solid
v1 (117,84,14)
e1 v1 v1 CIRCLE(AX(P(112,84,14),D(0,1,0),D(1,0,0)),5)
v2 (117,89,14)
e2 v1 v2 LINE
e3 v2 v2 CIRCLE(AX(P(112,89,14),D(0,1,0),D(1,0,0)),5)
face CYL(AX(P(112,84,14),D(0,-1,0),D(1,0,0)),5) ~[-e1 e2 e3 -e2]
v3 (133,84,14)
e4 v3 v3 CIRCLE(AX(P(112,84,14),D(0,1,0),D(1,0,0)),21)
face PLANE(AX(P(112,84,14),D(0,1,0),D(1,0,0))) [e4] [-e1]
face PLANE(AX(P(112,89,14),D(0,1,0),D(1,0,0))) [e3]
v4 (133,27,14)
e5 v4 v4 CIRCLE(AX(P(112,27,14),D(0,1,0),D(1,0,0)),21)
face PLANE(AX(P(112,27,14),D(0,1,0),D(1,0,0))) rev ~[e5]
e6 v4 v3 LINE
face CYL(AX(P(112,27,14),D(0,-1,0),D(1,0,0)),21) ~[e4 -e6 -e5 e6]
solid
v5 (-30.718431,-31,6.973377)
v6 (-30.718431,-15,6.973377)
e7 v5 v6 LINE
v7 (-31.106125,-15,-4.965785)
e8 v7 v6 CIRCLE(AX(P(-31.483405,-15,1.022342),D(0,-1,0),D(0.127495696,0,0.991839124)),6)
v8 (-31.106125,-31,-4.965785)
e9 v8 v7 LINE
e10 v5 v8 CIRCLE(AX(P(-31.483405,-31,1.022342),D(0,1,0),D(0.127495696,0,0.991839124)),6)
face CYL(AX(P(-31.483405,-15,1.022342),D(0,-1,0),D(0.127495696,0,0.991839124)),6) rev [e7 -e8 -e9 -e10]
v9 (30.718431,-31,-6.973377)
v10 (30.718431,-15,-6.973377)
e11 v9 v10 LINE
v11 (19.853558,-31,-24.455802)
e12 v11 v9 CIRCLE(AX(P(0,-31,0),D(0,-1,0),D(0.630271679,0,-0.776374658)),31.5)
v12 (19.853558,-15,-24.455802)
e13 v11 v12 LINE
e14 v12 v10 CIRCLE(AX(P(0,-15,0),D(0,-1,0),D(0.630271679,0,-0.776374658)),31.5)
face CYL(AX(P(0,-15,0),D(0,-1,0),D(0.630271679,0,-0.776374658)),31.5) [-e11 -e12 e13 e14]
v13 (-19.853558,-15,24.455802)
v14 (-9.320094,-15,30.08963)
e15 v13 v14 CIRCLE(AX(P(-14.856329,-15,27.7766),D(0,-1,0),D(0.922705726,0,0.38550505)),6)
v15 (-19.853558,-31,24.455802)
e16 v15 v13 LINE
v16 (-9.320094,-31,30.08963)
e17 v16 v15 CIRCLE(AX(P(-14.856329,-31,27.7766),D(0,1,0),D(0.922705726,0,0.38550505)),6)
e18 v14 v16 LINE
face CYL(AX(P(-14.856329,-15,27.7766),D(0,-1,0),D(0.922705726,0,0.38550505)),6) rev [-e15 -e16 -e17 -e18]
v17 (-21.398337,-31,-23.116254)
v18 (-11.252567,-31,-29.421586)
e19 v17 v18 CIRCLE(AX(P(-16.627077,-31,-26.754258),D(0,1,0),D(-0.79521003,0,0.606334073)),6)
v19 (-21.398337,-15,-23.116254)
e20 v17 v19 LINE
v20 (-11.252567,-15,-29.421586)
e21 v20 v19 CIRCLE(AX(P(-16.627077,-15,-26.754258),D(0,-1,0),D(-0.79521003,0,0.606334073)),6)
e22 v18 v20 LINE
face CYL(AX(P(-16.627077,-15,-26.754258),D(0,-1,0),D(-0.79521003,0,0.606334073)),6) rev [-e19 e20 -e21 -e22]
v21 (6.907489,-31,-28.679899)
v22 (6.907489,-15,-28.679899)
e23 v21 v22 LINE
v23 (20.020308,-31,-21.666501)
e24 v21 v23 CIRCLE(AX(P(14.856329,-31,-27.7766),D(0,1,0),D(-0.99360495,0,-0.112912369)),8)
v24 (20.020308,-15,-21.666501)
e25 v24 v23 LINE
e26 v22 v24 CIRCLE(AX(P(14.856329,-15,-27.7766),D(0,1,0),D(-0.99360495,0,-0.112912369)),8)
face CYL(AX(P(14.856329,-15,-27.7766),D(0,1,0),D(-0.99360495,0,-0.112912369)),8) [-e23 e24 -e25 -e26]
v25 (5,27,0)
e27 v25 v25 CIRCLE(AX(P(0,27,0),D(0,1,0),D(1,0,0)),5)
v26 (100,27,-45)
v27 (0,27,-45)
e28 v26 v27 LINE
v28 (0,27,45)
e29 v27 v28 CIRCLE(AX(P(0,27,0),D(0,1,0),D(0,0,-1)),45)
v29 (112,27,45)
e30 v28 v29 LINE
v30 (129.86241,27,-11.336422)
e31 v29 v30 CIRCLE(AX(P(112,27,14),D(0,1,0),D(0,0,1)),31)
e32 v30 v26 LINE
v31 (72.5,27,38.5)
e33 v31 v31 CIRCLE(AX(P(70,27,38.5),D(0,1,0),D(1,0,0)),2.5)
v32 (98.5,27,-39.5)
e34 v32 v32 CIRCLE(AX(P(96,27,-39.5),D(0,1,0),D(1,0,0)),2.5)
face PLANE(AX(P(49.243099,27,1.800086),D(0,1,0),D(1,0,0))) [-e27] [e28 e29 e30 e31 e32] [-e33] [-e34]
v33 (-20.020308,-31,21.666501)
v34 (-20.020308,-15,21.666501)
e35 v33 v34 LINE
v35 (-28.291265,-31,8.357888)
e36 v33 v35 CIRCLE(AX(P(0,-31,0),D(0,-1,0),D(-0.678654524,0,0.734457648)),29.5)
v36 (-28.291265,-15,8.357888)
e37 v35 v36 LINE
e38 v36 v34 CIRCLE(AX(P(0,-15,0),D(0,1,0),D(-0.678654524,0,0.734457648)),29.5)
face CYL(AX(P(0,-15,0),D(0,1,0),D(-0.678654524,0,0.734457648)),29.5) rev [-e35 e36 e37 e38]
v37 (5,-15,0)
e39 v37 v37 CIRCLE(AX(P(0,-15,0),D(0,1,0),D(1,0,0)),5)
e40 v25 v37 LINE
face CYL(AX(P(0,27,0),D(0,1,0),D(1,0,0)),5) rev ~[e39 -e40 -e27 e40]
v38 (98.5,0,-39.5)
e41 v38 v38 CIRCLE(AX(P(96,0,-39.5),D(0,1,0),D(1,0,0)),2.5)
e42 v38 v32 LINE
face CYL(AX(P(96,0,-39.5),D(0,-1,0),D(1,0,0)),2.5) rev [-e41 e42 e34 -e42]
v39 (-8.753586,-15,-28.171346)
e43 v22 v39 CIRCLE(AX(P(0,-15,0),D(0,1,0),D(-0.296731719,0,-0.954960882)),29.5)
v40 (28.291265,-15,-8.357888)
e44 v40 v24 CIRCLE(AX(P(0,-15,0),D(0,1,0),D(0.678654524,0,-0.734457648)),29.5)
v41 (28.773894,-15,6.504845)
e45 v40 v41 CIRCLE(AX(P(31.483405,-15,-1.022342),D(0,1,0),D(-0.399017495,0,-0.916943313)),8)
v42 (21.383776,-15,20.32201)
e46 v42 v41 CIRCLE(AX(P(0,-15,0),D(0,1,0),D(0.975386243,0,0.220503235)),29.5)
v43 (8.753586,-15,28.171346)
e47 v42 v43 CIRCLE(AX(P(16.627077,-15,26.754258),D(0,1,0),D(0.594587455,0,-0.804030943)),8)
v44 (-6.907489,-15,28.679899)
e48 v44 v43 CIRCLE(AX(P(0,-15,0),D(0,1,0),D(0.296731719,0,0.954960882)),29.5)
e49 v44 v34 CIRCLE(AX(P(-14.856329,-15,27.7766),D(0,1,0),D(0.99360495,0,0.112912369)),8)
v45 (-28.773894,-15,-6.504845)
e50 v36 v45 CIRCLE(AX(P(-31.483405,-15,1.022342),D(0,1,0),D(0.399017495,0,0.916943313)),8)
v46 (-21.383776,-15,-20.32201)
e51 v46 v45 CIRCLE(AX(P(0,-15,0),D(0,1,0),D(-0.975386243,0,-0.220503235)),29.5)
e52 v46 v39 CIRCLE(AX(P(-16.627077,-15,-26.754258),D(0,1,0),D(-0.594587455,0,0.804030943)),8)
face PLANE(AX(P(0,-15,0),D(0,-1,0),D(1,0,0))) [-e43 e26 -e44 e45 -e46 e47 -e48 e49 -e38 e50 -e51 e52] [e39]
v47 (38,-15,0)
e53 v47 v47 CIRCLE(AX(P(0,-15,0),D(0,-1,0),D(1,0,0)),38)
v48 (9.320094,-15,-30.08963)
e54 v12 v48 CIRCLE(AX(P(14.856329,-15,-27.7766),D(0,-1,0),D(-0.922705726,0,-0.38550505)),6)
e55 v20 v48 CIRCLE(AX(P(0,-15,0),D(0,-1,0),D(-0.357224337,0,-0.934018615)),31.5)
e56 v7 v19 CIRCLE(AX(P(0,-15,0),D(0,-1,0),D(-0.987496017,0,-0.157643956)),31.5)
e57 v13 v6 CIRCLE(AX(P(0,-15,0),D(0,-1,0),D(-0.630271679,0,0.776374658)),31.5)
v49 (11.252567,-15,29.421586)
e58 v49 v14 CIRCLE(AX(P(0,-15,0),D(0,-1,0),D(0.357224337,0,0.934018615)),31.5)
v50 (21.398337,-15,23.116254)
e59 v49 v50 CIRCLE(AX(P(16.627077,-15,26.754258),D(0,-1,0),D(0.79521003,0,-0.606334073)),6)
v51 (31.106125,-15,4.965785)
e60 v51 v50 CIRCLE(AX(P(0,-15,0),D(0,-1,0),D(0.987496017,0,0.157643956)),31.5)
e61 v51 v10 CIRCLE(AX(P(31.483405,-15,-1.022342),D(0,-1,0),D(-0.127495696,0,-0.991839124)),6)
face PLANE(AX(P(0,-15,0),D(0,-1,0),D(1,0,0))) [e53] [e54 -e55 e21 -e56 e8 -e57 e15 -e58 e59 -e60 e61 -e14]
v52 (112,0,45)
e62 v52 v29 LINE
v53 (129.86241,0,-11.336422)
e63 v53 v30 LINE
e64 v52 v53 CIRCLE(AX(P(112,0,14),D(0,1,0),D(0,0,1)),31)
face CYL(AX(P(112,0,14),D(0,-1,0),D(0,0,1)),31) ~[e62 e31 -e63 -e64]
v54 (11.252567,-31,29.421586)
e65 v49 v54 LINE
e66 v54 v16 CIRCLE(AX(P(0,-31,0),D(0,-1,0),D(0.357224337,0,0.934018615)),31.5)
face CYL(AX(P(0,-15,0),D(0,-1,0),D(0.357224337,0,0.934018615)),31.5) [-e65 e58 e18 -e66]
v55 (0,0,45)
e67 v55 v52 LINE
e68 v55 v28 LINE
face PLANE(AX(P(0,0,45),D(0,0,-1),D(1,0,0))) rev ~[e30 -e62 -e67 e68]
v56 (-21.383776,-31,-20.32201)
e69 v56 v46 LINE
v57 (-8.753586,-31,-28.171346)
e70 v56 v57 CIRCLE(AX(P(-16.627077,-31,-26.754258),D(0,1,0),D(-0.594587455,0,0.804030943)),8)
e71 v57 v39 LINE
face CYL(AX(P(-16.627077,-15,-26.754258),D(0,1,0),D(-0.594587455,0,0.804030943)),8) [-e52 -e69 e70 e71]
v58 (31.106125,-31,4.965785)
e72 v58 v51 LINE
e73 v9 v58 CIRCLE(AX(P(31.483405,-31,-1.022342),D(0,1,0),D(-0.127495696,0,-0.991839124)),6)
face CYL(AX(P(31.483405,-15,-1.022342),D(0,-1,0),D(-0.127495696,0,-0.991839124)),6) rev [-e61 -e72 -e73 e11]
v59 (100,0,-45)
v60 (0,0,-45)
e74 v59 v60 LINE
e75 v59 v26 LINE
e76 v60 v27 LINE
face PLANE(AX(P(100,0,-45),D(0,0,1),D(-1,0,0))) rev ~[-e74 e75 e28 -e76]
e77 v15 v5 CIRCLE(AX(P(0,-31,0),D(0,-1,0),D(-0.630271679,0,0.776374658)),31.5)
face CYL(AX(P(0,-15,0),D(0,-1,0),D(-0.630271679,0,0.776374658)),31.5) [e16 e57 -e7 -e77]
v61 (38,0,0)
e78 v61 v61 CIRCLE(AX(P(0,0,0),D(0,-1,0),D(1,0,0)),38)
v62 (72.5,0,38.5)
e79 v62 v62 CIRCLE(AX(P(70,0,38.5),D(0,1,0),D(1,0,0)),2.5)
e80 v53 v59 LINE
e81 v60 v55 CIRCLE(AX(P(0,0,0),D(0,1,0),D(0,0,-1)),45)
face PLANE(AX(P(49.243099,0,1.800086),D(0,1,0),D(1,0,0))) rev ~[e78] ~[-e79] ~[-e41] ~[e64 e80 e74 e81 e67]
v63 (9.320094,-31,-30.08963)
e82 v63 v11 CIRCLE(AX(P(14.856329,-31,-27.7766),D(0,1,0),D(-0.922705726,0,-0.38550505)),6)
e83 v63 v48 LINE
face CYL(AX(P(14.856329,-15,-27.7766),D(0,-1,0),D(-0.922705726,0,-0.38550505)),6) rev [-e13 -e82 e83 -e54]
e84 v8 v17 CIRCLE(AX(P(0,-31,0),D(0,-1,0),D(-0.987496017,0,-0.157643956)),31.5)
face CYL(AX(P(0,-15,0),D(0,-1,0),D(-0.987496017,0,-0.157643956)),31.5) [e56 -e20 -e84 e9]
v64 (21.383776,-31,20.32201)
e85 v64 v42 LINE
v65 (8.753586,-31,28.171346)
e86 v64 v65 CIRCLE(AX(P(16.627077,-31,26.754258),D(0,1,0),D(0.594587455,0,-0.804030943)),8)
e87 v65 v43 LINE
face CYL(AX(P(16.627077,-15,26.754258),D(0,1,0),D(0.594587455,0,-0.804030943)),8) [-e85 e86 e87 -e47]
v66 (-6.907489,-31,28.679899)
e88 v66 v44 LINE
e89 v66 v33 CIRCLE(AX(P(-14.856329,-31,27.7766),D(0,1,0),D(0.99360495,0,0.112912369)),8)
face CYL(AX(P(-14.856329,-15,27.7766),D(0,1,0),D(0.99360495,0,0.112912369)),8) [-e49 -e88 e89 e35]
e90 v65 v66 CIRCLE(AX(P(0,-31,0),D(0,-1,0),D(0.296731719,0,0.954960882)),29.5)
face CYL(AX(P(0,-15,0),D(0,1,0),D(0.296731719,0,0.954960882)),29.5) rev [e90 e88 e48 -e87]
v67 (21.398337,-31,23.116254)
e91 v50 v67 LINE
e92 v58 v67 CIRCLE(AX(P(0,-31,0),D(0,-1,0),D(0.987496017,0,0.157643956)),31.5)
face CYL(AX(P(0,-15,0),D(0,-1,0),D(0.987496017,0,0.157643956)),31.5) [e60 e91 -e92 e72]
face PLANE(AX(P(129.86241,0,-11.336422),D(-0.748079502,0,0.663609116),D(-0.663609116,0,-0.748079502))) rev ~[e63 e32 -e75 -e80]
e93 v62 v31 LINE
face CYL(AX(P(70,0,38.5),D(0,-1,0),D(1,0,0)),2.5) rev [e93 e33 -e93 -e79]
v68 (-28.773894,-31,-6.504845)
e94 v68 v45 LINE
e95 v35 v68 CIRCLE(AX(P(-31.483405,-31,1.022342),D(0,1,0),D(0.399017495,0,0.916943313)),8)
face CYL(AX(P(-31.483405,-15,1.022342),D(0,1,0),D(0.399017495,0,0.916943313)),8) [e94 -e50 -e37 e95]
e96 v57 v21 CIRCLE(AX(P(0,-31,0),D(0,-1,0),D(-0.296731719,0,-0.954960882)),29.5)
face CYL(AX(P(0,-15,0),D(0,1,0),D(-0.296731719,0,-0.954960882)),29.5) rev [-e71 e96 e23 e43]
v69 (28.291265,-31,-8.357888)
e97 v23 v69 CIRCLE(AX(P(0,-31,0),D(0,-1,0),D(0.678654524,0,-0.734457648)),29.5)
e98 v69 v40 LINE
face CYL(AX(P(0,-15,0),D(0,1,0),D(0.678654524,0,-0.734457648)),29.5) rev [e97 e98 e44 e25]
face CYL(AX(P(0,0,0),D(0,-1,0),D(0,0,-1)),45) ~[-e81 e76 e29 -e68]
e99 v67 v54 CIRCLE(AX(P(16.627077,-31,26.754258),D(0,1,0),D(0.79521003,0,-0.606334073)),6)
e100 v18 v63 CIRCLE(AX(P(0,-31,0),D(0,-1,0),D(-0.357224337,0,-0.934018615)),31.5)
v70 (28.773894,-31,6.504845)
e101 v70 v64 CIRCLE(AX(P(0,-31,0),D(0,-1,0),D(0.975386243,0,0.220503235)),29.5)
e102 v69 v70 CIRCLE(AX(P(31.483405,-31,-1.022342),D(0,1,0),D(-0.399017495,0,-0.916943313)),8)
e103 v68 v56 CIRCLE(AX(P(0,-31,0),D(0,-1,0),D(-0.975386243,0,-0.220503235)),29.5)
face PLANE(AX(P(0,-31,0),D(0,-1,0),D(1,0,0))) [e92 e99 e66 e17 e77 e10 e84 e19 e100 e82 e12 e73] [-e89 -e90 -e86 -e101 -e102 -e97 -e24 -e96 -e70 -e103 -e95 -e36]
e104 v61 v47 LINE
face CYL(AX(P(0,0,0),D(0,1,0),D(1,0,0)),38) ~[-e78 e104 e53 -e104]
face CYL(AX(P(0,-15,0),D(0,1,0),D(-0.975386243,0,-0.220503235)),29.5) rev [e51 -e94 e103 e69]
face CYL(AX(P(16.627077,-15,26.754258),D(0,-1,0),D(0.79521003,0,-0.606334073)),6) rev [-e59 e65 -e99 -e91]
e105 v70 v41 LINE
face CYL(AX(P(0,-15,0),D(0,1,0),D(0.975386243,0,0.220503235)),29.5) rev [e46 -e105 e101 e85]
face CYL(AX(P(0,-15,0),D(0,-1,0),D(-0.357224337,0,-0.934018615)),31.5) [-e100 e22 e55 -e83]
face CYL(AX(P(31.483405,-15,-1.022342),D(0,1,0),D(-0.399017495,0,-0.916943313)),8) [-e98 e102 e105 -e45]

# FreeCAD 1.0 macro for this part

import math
import FreeCAD as App
import Part
import Sketcher

V = App.Vector
Q = App.Units.Quantity

doc = App.newDocument("Part")
body = doc.addObject("PartDesign::Body", "Body")

sketch1 = body.newObject("Sketcher::SketchObject", "Sketch")
sketch1.AttachmentSupport = (doc.getObject("XZ_Plane"), [""])
sketch1.MapMode = "FlatFace"
sketch1.addGeometry([
    Part.LineSegment(V(100, -45, 0), V(0, -45, 0)),
    Part.ArcOfCircle(Part.Circle(V(0, 0, 0), V(0, 0, 1), 45), math.radians(90), math.radians(270)),
    Part.LineSegment(V(0, 45, 0), V(112, 45, 0)),
    Part.ArcOfCircle(Part.Circle(V(112, 14, 0), V(0, 0, 1), 31), math.radians(-55), math.radians(90)),
    Part.LineSegment(V(129.9, -11.3, 0), V(100, -45, 0)),
    Part.Circle(V(0, 0, 0), V(0, 0, 1), 5),
    Part.Circle(V(70, 38.5, 0), V(0, 0, 1), 2.5),
    Part.Circle(V(96, -39.5, 0), V(0, 0, 1), 2.5),
], False)
sketch1.addConstraint([
    Sketcher.Constraint("Tangent", 0, 2, 1, 2),
    Sketcher.Constraint("Tangent", 1, 1, 2, 1),
    Sketcher.Constraint("Tangent", 2, 2, 3, 2),
    Sketcher.Constraint("Coincident", 3, 1, 4, 1),
    Sketcher.Constraint("Coincident", 4, 2, 0, 1),
    Sketcher.Constraint("Horizontal", 0),
    Sketcher.Constraint("Horizontal", 2),
    Sketcher.Constraint("Coincident", 1, 3, -1, 1),
    Sketcher.Constraint("Coincident", 5, 3, -1, 1),
    Sketcher.Constraint("Equal", 6, 7),
    Sketcher.Constraint("Diameter", 5, Q("10 mm")),
    Sketcher.Constraint("Diameter", 6, Q("5 mm")),
    Sketcher.Constraint("Radius", 1, Q("45 mm")),
    Sketcher.Constraint("Radius", 3, Q("31 mm")),
    Sketcher.Constraint("DistanceX", 0, 2, 0, 1, Q("100 mm")),
    Sketcher.Constraint("DistanceX", 2, 1, 2, 2, Q("112 mm")),
    Sketcher.Constraint("Distance", 4, Q("45 mm")),
    Sketcher.Constraint("DistanceX", -1, 1, 6, 3, Q("70 mm")),
    Sketcher.Constraint("DistanceX", -1, 1, 7, 3, Q("96 mm")),
    Sketcher.Constraint("DistanceY", 7, 3, 6, 3, Q("78 mm")),
    Sketcher.Constraint("DistanceY", -1, 1, 6, 3, Q("38.5 mm")),
])
pad1 = body.newObject("PartDesign::Pad", "Pad")
pad1.Profile = sketch1
pad1.Length = 27
pad1.Reversed = True

sketch2 = body.newObject("Sketcher::SketchObject", "Sketch001")
sketch2.AttachmentSupport = (doc.getObject("XZ_Plane"), [""])
sketch2.MapMode = "FlatFace"
sketch2.addGeometry([
    Part.Circle(V(0, 0, 0), V(0, 0, 1), 38),
    Part.Circle(V(0, 0, 0), V(0, 0, 1), 33),
], False)
sketch2.addConstraint([
    Sketcher.Constraint("Coincident", 0, 3, -1, 1),
    Sketcher.Constraint("Coincident", 1, 3, -1, 1),
    Sketcher.Constraint("Diameter", 0, Q("76 mm")),
    Sketcher.Constraint("Diameter", 1, Q("66 mm")),
])
pad2 = body.newObject("PartDesign::Pad", "Pad001")
pad2.Profile = sketch2
pad2.Length = 15

sketch3 = body.newObject("Sketcher::SketchObject", "Sketch002")
sketch3.AttachmentSupport = (doc.getObject("XZ_Plane"), [""])
sketch3.MapMode = "FlatFace"
sketch3.AttachmentOffset = App.Placement(V(0, 0, 15), App.Rotation())
sketch3.addGeometry([
    Part.ArcOfCircle(Part.Circle(V(0, 0, 0), V(0, 0, 1), 32), math.radians(9), math.radians(47)),
    Part.ArcOfCircle(Part.Circle(V(17, 27, 0), V(0, 0, 1), 6), math.radians(154), math.radians(323)),
    Part.ArcOfCircle(Part.Circle(V(0, 0, 0), V(0, 0, 1), 32), math.radians(69), math.radians(107)),
    Part.ArcOfCircle(Part.Circle(V(-15, 28, 0), V(0, 0, 1), 6), math.radians(-146), math.radians(23)),
    Part.ArcOfCircle(Part.Circle(V(0, 0, 0), V(0, 0, 1), 32), math.radians(129), math.radians(167)),
    Part.ArcOfCircle(Part.Circle(V(-31, 1, 0), V(0, 0, 1), 6), math.radians(-86), math.radians(83)),
    Part.ArcOfCircle(Part.Circle(V(0, 0, 0), V(0, 0, 1), 32), math.radians(-171), math.radians(-133)),
    Part.ArcOfCircle(Part.Circle(V(-17, -27, 0), V(0, 0, 1), 6), math.radians(-26), math.radians(143)),
    Part.ArcOfCircle(Part.Circle(V(0, 0, 0), V(0, 0, 1), 32), math.radians(-111), math.radians(-73)),
    Part.ArcOfCircle(Part.Circle(V(15, -28, 0), V(0, 0, 1), 6), math.radians(34), math.radians(203)),
    Part.ArcOfCircle(Part.Circle(V(0, 0, 0), V(0, 0, 1), 32), math.radians(-51), math.radians(-13)),
    Part.ArcOfCircle(Part.Circle(V(31, -1, 0), V(0, 0, 1), 6), math.radians(94), math.radians(263)),
    Part.ArcOfCircle(Part.Circle(V(0, 0, 0), V(0, 0, 1), 30), math.radians(-47), math.radians(-16)),
    Part.ArcOfCircle(Part.Circle(V(15, -28, 0), V(0, 0, 1), 8), math.radians(50), math.radians(186)),
    Part.ArcOfCircle(Part.Circle(V(0, 0, 0), V(0, 0, 1), 30), math.radians(-107), math.radians(-76)),
    Part.ArcOfCircle(Part.Circle(V(-17, -27, 0), V(0, 0, 1), 8), math.radians(-10), math.radians(126)),
    Part.ArcOfCircle(Part.Circle(V(0, 0, 0), V(0, 0, 1), 29), math.radians(-167), math.radians(-136)),
    Part.ArcOfCircle(Part.Circle(V(-31, 1, 0), V(0, 0, 1), 8), math.radians(-70), math.radians(66)),
    Part.ArcOfCircle(Part.Circle(V(0, 0, 0), V(0, 0, 1), 30), math.radians(133), math.radians(164)),
    Part.ArcOfCircle(Part.Circle(V(-15, 28, 0), V(0, 0, 1), 8), math.radians(-130), math.radians(6)),
    Part.ArcOfCircle(Part.Circle(V(0, 0, 0), V(0, 0, 1), 30), math.radians(73), math.radians(104)),
    Part.ArcOfCircle(Part.Circle(V(17, 27, 0), V(0, 0, 1), 8), math.radians(170), math.radians(306)),
    Part.ArcOfCircle(Part.Circle(V(0, 0, 0), V(0, 0, 1), 29), math.radians(13), math.radians(44)),
    Part.ArcOfCircle(Part.Circle(V(31, -1, 0), V(0, 0, 1), 8), math.radians(110), math.radians(246)),
], False)
sketch3.addConstraint([
    Sketcher.Constraint("Coincident", 0, 2, 1, 2),
    Sketcher.Constraint("Coincident", 1, 1, 2, 1),
    Sketcher.Constraint("Coincident", 2, 2, 3, 2),
    Sketcher.Constraint("Coincident", 3, 1, 4, 1),
    Sketcher.Constraint("Coincident", 4, 2, 5, 2),
    Sketcher.Constraint("Coincident", 5, 1, 6, 1),
    Sketcher.Constraint("Coincident", 6, 2, 7, 2),
    Sketcher.Constraint("Coincident", 7, 1, 8, 1),
    Sketcher.Constraint("Coincident", 8, 2, 9, 2),
    Sketcher.Constraint("Coincident", 9, 1, 10, 1),
    Sketcher.Constraint("Coincident", 10, 2, 11, 2),
    Sketcher.Constraint("Coincident", 11, 1, 0, 1),
    Sketcher.Constraint("Coincident", 12, 1, 13, 1),
    Sketcher.Constraint("Coincident", 13, 2, 14, 2),
    Sketcher.Constraint("Coincident", 14, 1, 15, 1),
    Sketcher.Constraint("Coincident", 15, 2, 16, 2),
    Sketcher.Constraint("Coincident", 16, 1, 17, 1),
    Sketcher.Constraint("Coincident", 17, 2, 18, 2),
    Sketcher.Constraint("Coincident", 18, 1, 19, 1),
    Sketcher.Constraint("Coincident", 19, 2, 20, 2),
    Sketcher.Constraint("Coincident", 20, 1, 21, 1),
    Sketcher.Constraint("Coincident", 21, 2, 22, 2),
    Sketcher.Constraint("Coincident", 22, 1, 23, 1),
    Sketcher.Constraint("Coincident", 23, 2, 12, 2),
    Sketcher.Constraint("Coincident", 0, 3, -1, 1),
    Sketcher.Constraint("Coincident", 2, 3, -1, 1),
    Sketcher.Constraint("Coincident", 4, 3, -1, 1),
    Sketcher.Constraint("Coincident", 6, 3, -1, 1),
    Sketcher.Constraint("Coincident", 8, 3, -1, 1),
    Sketcher.Constraint("Coincident", 10, 3, -1, 1),
    Sketcher.Constraint("Coincident", 12, 3, -1, 1),
    Sketcher.Constraint("Coincident", 14, 3, -1, 1),
    Sketcher.Constraint("Coincident", 16, 3, -1, 1),
    Sketcher.Constraint("Coincident", 18, 3, -1, 1),
    Sketcher.Constraint("Coincident", 20, 3, -1, 1),
    Sketcher.Constraint("Coincident", 22, 3, -1, 1),
    Sketcher.Constraint("Coincident", 13, 3, 9, 3),
    Sketcher.Constraint("Coincident", 15, 3, 7, 3),
    Sketcher.Constraint("Coincident", 17, 3, 5, 3),
    Sketcher.Constraint("Coincident", 19, 3, 3, 3),
    Sketcher.Constraint("Coincident", 21, 3, 1, 3),
    Sketcher.Constraint("Coincident", 23, 3, 11, 3),
    Sketcher.Constraint("Equal", 0, 2),
    Sketcher.Constraint("Equal", 1, 3),
    Sketcher.Constraint("Equal", 2, 4),
    Sketcher.Constraint("Equal", 3, 5),
    Sketcher.Constraint("Equal", 4, 6),
    Sketcher.Constraint("Equal", 5, 7),
    Sketcher.Constraint("Equal", 6, 8),
    Sketcher.Constraint("Equal", 7, 9),
    Sketcher.Constraint("Equal", 8, 10),
    Sketcher.Constraint("Equal", 9, 11),
    Sketcher.Constraint("Equal", 12, 14),
    Sketcher.Constraint("Equal", 13, 15),
    Sketcher.Constraint("Equal", 14, 16),
    Sketcher.Constraint("Equal", 15, 17),
    Sketcher.Constraint("Equal", 16, 18),
    Sketcher.Constraint("Equal", 17, 19),
    Sketcher.Constraint("Equal", 18, 20),
    Sketcher.Constraint("Equal", 19, 21),
    Sketcher.Constraint("Equal", 20, 22),
    Sketcher.Constraint("Equal", 21, 23),
    Sketcher.Constraint("Symmetric", 1, 3, 7, 3, -1, 1),
    Sketcher.Constraint("Symmetric", 3, 3, 9, 3, -1, 1),
    Sketcher.Constraint("Symmetric", 5, 3, 11, 3, -1, 1),
    Sketcher.Constraint("Radius", 1, Q("6 mm")),
    Sketcher.Constraint("Radius", 13, Q("8 mm")),
    Sketcher.Constraint("Radius", 0, Q("31.5 mm")),
    Sketcher.Constraint("Radius", 12, Q("29.5 mm")),
    Sketcher.Constraint("DistanceY", -1, 1, 3, 3, Q("27.7766 mm")),
    Sketcher.Constraint("DistanceY", -1, 1, 3, 1, Q("24.455802 mm")),
    Sketcher.Constraint("DistanceY", 7, 3, 5, 3, Q("27.7766 mm")),
    Sketcher.Constraint("DistanceX", 15, 2, 7, 3, Q("4.7567 mm")),
    Sketcher.Constraint("DistanceY", -1, 1, 5, 3, Q("1.022342 mm")),
    Sketcher.Constraint("DistanceY", -1, 1, 17, 2, Q("8.357888 mm")),
])
pad3 = body.newObject("PartDesign::Pad", "Pad002")
pad3.Profile = sketch3
pad3.Type = "TwoLengths"
pad3.Length = 16
pad3.Length2 = 15

sketch4 = body.newObject("Sketcher::SketchObject", "Sketch003")
sketch4.AttachmentSupport = (doc.getObject("XZ_Plane"), [""])
sketch4.MapMode = "FlatFace"
sketch4.addGeometry(Part.Circle(V(0, 0, 0), V(0, 0, 1), 33), False)
sketch4.addConstraint([
    Sketcher.Constraint("Coincident", 0, 3, -1, 1),
    Sketcher.Constraint("Diameter", 0, Q("66 mm")),
])
pad4 = body.newObject("PartDesign::Pad", "Pad003")
pad4.Profile = sketch4
pad4.Length = 15

sketch5 = body.newObject("Sketcher::SketchObject", "Sketch004")
sketch5.AttachmentSupport = (doc.getObject("XZ_Plane"), [""])
sketch5.MapMode = "FlatFace"
sketch5.AttachmentOffset = App.Placement(V(0, 0, -27), App.Rotation())
sketch5.addGeometry(Part.Circle(V(0, 0, 0), V(0, 0, 1), 5), False)
sketch5.addConstraint([
    Sketcher.Constraint("Coincident", 0, 3, -1, 1),
    Sketcher.Constraint("Diameter", 0, Q("10 mm")),
])
pocket1 = body.newObject("PartDesign::Pocket", "Pocket")
pocket1.Profile = sketch5
pocket1.Length = 87
pocket1.Reversed = True
body2 = doc.addObject("PartDesign::Body", "Body001")

sketch6 = body2.newObject("Sketcher::SketchObject", "Sketch005")
sketch6.AttachmentSupport = (doc.getObject("XZ_Plane001"), [""])
sketch6.MapMode = "FlatFace"
sketch6.AttachmentOffset = App.Placement(V(0, 0, -27), App.Rotation())
sketch6.addGeometry(Part.Circle(V(112, 14, 0), V(0, 0, 1), 21), False)
sketch6.addConstraint([
    Sketcher.Constraint("Diameter", 0, Q("42 mm")),
    Sketcher.Constraint("DistanceX", -1, 1, 0, 3, Q("112 mm")),
    Sketcher.Constraint("DistanceY", -1, 1, 0, 3, Q("14 mm")),
])
pad5 = body2.newObject("PartDesign::Pad", "Pad004")
pad5.Profile = sketch6
pad5.Length = 57
pad5.Reversed = True

sketch7 = body2.newObject("Sketcher::SketchObject", "Sketch006")
sketch7.AttachmentSupport = (doc.getObject("XZ_Plane001"), [""])
sketch7.MapMode = "FlatFace"
sketch7.AttachmentOffset = App.Placement(V(0, 0, -84), App.Rotation())
sketch7.addGeometry(Part.Circle(V(112, 14, 0), V(0, 0, 1), 5), False)
sketch7.addConstraint([
    Sketcher.Constraint("Diameter", 0, Q("10 mm")),
    Sketcher.Constraint("DistanceX", -1, 1, 0, 3, Q("112 mm")),
    Sketcher.Constraint("DistanceY", -1, 1, 0, 3, Q("14 mm")),
])
pad6 = body2.newObject("PartDesign::Pad", "Pad005")
pad6.Profile = sketch7
pad6.Length = 5
pad6.Reversed = True

doc.recompute()
